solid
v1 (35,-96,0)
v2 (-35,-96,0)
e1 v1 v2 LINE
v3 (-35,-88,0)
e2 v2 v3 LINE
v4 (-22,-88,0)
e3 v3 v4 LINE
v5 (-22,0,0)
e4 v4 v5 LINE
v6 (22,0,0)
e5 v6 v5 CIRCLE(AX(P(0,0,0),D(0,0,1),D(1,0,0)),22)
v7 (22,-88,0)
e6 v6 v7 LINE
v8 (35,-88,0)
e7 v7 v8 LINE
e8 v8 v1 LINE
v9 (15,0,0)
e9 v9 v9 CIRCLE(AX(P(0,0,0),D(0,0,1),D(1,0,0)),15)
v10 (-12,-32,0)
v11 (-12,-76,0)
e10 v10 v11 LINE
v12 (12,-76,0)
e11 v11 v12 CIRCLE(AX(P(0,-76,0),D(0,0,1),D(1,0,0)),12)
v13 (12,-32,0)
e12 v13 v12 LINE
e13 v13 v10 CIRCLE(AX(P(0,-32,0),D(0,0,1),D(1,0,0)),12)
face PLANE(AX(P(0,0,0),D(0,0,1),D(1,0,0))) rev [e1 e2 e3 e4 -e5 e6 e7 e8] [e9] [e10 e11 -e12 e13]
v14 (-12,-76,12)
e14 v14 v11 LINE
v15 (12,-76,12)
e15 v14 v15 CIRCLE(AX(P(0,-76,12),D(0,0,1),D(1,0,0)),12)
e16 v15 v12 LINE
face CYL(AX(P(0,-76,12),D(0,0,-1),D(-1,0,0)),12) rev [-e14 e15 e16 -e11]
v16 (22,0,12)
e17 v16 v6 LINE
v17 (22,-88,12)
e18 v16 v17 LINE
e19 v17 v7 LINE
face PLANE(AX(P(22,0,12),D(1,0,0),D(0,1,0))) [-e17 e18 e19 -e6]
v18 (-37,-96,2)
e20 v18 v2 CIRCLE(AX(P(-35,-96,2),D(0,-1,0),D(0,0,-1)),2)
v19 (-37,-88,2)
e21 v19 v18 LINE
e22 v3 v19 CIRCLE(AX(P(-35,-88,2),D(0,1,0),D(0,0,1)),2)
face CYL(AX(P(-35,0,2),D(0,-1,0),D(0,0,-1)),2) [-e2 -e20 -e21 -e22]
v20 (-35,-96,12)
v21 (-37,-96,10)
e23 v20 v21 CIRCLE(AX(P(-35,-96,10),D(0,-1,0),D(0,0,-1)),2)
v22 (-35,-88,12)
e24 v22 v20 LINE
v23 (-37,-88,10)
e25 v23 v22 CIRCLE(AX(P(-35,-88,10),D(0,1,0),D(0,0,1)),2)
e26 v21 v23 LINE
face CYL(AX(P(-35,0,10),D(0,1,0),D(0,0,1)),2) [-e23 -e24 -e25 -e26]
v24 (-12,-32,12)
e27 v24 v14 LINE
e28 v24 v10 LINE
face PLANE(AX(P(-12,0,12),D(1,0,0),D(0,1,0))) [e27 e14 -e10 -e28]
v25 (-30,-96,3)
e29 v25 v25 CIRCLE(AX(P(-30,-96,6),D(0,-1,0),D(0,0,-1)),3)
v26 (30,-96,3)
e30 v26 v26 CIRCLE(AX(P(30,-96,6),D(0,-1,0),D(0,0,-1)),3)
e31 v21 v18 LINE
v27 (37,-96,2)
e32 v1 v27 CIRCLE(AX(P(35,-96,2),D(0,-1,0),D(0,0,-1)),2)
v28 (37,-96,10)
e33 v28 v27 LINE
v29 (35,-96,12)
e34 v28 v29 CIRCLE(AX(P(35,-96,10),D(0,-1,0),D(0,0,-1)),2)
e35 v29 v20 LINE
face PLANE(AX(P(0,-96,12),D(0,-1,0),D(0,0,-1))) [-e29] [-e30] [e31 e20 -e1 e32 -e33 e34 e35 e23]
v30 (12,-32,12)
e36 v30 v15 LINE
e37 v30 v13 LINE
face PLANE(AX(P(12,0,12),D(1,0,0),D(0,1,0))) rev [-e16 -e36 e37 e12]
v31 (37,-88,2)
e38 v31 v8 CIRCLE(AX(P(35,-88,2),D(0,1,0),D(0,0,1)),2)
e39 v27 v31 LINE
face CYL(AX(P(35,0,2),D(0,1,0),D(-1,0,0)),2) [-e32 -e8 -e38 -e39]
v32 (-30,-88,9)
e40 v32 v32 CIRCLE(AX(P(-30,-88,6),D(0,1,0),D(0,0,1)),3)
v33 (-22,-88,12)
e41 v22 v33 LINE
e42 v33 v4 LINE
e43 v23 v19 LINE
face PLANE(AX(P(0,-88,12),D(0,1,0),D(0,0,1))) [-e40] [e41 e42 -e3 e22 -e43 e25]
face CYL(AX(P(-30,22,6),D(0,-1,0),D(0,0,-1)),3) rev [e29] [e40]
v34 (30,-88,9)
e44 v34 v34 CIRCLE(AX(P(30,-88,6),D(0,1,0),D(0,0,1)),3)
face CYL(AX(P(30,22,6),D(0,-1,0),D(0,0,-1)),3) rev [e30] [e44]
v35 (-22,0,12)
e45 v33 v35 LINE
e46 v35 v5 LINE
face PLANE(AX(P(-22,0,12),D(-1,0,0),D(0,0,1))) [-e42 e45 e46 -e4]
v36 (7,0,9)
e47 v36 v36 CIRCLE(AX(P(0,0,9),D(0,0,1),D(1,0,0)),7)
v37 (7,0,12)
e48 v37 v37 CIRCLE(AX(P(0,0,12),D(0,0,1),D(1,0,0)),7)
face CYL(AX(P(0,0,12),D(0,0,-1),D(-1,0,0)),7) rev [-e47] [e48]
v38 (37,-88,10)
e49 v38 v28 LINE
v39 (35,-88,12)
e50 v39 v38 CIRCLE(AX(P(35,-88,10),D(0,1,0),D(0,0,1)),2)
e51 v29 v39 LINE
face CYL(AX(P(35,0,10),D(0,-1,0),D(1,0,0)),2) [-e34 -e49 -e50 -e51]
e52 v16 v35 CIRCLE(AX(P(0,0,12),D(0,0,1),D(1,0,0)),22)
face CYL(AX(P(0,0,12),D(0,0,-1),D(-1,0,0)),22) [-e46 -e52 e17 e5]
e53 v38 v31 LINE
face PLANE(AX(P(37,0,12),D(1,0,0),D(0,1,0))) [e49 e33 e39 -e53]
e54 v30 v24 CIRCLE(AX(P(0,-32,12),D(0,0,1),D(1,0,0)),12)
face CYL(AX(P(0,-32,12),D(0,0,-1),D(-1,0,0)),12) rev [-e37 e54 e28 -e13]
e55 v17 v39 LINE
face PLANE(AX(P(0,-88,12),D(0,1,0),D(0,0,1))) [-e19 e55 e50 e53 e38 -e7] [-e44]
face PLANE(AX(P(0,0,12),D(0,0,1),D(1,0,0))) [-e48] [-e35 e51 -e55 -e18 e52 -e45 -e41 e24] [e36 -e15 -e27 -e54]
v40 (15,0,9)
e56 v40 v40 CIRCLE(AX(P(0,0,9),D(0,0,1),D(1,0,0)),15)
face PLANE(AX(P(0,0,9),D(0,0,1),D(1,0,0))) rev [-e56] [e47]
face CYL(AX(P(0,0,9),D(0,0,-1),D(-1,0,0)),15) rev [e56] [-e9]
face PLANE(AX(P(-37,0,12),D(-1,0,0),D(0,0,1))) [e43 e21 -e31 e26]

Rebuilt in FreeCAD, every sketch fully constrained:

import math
import FreeCAD as App
import Part
import Sketcher

V = App.Vector


def edges_at(feature, points):
    """Names of the edges that pass closest to the given points."""
    edges = feature.Shape.Edges
    near = lambda p: min(range(len(edges)), key=lambda i: edges[i].distToShape(Part.Vertex(*p))[0])
    return sorted({f"Edge{near(p) + 1}" for p in points})

doc = App.newDocument("Part")
params = doc.addObject("Spreadsheet::Sheet", "Params")
for row, (alias, value) in enumerate([
    ("sketch1_diameter", "14 mm"),
    ("sketch1_radius", "22 mm"),
    ("sketch1_radius2", "12 mm"),
    ("sketch1_width", "15 mm"),
    ("sketch1_height", "88 mm"),
    ("pad1_length", "12 mm"),
    ("sketch2_diameter", "6 mm"),
    ("sketch3_diameter", "30 mm"),
    ("sketch3_diameter2", "14 mm"),
    ("pocket2_length", "9 mm"),
    ("fillet_radius", "2 mm"),
], start=1):
    params.set(f"A{row}", alias)
    params.set(f"B{row}", "=" + value)
    params.setAlias(f"B{row}", alias)

body = doc.addObject("PartDesign::Body", "Body")

sketch1 = body.newObject("Sketcher::SketchObject", "Sketch")
sketch1.AttachmentSupport = (doc.getObject("XY_Plane"), [""])
sketch1.MapMode = "FlatFace"
sketch1.addGeometry([
    Part.LineSegment(V(22, -88, 0), V(22, 0, 0)),
    Part.ArcOfCircle(Part.Circle(V(0, 0, 0), V(0, 0, 1), 22), math.radians(0), math.radians(180)),
    Part.LineSegment(V(-22, 0, 0), V(-22, -88, 0)),
    Part.LineSegment(V(-22, -88, 0), V(-37, -88, 0)),
    Part.LineSegment(V(-37, -88, 0), V(-37, -96, 0)),
    Part.LineSegment(V(-37, -96, 0), V(37, -96, 0)),
    Part.LineSegment(V(37, -96, 0), V(37, -88, 0)),
    Part.LineSegment(V(37, -88, 0), V(22, -88, 0)),
    Part.LineSegment(V(-12, -76, 0), V(-12, -32, 0)),
    Part.ArcOfCircle(Part.Circle(V(0, -32, 0), V(0, 0, 1), 12), math.radians(0), math.radians(180)),
    Part.LineSegment(V(12, -32, 0), V(12, -76, 0)),
    Part.ArcOfCircle(Part.Circle(V(0, -76, 0), V(0, 0, 1), 12), math.radians(180), math.radians(360)),
    Part.Circle(V(0, 0, 0), V(0, 0, 1), 7),
], False)
sketch1.addConstraint([
    Sketcher.Constraint("Tangent", 0, 2, 1, 1),
    Sketcher.Constraint("Tangent", 1, 2, 2, 1),
    Sketcher.Constraint("Coincident", 2, 2, 3, 1),
    Sketcher.Constraint("Coincident", 3, 2, 4, 1),
    Sketcher.Constraint("Coincident", 4, 2, 5, 1),
    Sketcher.Constraint("Coincident", 5, 2, 6, 1),
    Sketcher.Constraint("Coincident", 6, 2, 7, 1),
    Sketcher.Constraint("Coincident", 7, 2, 0, 1),
    Sketcher.Constraint("Tangent", 8, 2, 9, 2),
    Sketcher.Constraint("Tangent", 9, 1, 10, 1),
    Sketcher.Constraint("Tangent", 10, 2, 11, 2),
    Sketcher.Constraint("Tangent", 11, 1, 8, 1),
    Sketcher.Constraint("Vertical", 0),
    Sketcher.Constraint("Vertical", 2),
    Sketcher.Constraint("Horizontal", 3),
    Sketcher.Constraint("Vertical", 4),
    Sketcher.Constraint("Horizontal", 5),
    Sketcher.Constraint("Vertical", 6),
    Sketcher.Constraint("Horizontal", 7),
    Sketcher.Constraint("Vertical", 8),
    Sketcher.Constraint("Vertical", 10),
    Sketcher.Constraint("Coincident", 1, 3, -1, 1),
    Sketcher.Constraint("Coincident", 12, 3, -1, 1),
    Sketcher.Constraint("Symmetric", 3, 2, 6, 2, -2),
    Sketcher.Constraint("PointOnObject", 9, 3, -2),
    Sketcher.Constraint("Diameter", 12, 14.0),
    Sketcher.Constraint("Radius", 1, 22.0),
    Sketcher.Constraint("Radius", 9, 12.0),
    Sketcher.Constraint("DistanceX", 3, 2, 3, 1, 15.0),
    Sketcher.Constraint("DistanceY", 0, 1, 0, 2, 88.0),
    Sketcher.Constraint("DistanceY", 4, 2, 4, 1, 8.0),
    Sketcher.Constraint("DistanceY", 8, 1, 8, 2, 44.0),
    Sketcher.Constraint("DistanceY", 9, 3, -1, 1, 32.0),
])
sketch1.setExpression("Constraints[25]", "Params.sketch1_diameter")
sketch1.setExpression("Constraints[26]", "Params.sketch1_radius")
sketch1.setExpression("Constraints[27]", "Params.sketch1_radius2")
sketch1.setExpression("Constraints[28]", "Params.sketch1_width")
sketch1.setExpression("Constraints[29]", "Params.sketch1_height")
pad1 = body.newObject("PartDesign::Pad", "Pad")
pad1.Profile = sketch1
pad1.setExpression("Length", "Params.pad1_length")

sketch2 = body.newObject("Sketcher::SketchObject", "Sketch001")
sketch2.AttachmentSupport = (doc.getObject("XZ_Plane"), [""])
sketch2.MapMode = "FlatFace"
sketch2.AttachmentOffset = App.Placement(V(0, 0, 96), App.Rotation())
sketch2.addGeometry([
    Part.Circle(V(-30, 6, 0), V(0, 0, 1), 3),
    Part.Circle(V(30, 6, 0), V(0, 0, 1), 3),
], False)
sketch2.addConstraint([
    Sketcher.Constraint("Equal", 0, 1),
    Sketcher.Constraint("Symmetric", 0, 3, 1, 3, -2),
    Sketcher.Constraint("Diameter", 0, 6.0),
    Sketcher.Constraint("DistanceX", 0, 3, -1, 1, 30.0),
    Sketcher.Constraint("DistanceY", -1, 1, 0, 3, 6.0),
])
sketch2.setExpression("Constraints[2]", "Params.sketch2_diameter")
pocket1 = body.newObject("PartDesign::Pocket", "Pocket")
pocket1.Profile = sketch2
pocket1.Type = "ThroughAll"

sketch3 = body.newObject("Sketcher::SketchObject", "Sketch002")
sketch3.AttachmentSupport = (doc.getObject("XY_Plane"), [""])
sketch3.MapMode = "FlatFace"
sketch3.addGeometry([
    Part.Circle(V(0, 0, 0), V(0, 0, 1), 15),
    Part.Circle(V(0, 0, 0), V(0, 0, 1), 7),
], False)
sketch3.addConstraint([
    Sketcher.Constraint("Coincident", 0, 3, -1, 1),
    Sketcher.Constraint("Coincident", 1, 3, -1, 1),
    Sketcher.Constraint("Diameter", 0, 30.0),
    Sketcher.Constraint("Diameter", 1, 14.0),
])
sketch3.setExpression("Constraints[2]", "Params.sketch3_diameter")
sketch3.setExpression("Constraints[3]", "Params.sketch3_diameter2")
pocket2 = body.newObject("PartDesign::Pocket", "Pocket001")
pocket2.Profile = sketch3
pocket2.setExpression("Length", "Params.pocket2_length")
pocket2.Reversed = True
doc.recompute()

fillet = body.newObject("PartDesign::Fillet", "Fillet")
fillet.Base = (pocket2, edges_at(pocket2, [
    (37, -92, 0),
    (-37, -92, 0),
    (-37, -92, 12),
    (37, -92, 12),
]))
fillet.setExpression("Radius", "Params.fillet_radius")

doc.recompute()
